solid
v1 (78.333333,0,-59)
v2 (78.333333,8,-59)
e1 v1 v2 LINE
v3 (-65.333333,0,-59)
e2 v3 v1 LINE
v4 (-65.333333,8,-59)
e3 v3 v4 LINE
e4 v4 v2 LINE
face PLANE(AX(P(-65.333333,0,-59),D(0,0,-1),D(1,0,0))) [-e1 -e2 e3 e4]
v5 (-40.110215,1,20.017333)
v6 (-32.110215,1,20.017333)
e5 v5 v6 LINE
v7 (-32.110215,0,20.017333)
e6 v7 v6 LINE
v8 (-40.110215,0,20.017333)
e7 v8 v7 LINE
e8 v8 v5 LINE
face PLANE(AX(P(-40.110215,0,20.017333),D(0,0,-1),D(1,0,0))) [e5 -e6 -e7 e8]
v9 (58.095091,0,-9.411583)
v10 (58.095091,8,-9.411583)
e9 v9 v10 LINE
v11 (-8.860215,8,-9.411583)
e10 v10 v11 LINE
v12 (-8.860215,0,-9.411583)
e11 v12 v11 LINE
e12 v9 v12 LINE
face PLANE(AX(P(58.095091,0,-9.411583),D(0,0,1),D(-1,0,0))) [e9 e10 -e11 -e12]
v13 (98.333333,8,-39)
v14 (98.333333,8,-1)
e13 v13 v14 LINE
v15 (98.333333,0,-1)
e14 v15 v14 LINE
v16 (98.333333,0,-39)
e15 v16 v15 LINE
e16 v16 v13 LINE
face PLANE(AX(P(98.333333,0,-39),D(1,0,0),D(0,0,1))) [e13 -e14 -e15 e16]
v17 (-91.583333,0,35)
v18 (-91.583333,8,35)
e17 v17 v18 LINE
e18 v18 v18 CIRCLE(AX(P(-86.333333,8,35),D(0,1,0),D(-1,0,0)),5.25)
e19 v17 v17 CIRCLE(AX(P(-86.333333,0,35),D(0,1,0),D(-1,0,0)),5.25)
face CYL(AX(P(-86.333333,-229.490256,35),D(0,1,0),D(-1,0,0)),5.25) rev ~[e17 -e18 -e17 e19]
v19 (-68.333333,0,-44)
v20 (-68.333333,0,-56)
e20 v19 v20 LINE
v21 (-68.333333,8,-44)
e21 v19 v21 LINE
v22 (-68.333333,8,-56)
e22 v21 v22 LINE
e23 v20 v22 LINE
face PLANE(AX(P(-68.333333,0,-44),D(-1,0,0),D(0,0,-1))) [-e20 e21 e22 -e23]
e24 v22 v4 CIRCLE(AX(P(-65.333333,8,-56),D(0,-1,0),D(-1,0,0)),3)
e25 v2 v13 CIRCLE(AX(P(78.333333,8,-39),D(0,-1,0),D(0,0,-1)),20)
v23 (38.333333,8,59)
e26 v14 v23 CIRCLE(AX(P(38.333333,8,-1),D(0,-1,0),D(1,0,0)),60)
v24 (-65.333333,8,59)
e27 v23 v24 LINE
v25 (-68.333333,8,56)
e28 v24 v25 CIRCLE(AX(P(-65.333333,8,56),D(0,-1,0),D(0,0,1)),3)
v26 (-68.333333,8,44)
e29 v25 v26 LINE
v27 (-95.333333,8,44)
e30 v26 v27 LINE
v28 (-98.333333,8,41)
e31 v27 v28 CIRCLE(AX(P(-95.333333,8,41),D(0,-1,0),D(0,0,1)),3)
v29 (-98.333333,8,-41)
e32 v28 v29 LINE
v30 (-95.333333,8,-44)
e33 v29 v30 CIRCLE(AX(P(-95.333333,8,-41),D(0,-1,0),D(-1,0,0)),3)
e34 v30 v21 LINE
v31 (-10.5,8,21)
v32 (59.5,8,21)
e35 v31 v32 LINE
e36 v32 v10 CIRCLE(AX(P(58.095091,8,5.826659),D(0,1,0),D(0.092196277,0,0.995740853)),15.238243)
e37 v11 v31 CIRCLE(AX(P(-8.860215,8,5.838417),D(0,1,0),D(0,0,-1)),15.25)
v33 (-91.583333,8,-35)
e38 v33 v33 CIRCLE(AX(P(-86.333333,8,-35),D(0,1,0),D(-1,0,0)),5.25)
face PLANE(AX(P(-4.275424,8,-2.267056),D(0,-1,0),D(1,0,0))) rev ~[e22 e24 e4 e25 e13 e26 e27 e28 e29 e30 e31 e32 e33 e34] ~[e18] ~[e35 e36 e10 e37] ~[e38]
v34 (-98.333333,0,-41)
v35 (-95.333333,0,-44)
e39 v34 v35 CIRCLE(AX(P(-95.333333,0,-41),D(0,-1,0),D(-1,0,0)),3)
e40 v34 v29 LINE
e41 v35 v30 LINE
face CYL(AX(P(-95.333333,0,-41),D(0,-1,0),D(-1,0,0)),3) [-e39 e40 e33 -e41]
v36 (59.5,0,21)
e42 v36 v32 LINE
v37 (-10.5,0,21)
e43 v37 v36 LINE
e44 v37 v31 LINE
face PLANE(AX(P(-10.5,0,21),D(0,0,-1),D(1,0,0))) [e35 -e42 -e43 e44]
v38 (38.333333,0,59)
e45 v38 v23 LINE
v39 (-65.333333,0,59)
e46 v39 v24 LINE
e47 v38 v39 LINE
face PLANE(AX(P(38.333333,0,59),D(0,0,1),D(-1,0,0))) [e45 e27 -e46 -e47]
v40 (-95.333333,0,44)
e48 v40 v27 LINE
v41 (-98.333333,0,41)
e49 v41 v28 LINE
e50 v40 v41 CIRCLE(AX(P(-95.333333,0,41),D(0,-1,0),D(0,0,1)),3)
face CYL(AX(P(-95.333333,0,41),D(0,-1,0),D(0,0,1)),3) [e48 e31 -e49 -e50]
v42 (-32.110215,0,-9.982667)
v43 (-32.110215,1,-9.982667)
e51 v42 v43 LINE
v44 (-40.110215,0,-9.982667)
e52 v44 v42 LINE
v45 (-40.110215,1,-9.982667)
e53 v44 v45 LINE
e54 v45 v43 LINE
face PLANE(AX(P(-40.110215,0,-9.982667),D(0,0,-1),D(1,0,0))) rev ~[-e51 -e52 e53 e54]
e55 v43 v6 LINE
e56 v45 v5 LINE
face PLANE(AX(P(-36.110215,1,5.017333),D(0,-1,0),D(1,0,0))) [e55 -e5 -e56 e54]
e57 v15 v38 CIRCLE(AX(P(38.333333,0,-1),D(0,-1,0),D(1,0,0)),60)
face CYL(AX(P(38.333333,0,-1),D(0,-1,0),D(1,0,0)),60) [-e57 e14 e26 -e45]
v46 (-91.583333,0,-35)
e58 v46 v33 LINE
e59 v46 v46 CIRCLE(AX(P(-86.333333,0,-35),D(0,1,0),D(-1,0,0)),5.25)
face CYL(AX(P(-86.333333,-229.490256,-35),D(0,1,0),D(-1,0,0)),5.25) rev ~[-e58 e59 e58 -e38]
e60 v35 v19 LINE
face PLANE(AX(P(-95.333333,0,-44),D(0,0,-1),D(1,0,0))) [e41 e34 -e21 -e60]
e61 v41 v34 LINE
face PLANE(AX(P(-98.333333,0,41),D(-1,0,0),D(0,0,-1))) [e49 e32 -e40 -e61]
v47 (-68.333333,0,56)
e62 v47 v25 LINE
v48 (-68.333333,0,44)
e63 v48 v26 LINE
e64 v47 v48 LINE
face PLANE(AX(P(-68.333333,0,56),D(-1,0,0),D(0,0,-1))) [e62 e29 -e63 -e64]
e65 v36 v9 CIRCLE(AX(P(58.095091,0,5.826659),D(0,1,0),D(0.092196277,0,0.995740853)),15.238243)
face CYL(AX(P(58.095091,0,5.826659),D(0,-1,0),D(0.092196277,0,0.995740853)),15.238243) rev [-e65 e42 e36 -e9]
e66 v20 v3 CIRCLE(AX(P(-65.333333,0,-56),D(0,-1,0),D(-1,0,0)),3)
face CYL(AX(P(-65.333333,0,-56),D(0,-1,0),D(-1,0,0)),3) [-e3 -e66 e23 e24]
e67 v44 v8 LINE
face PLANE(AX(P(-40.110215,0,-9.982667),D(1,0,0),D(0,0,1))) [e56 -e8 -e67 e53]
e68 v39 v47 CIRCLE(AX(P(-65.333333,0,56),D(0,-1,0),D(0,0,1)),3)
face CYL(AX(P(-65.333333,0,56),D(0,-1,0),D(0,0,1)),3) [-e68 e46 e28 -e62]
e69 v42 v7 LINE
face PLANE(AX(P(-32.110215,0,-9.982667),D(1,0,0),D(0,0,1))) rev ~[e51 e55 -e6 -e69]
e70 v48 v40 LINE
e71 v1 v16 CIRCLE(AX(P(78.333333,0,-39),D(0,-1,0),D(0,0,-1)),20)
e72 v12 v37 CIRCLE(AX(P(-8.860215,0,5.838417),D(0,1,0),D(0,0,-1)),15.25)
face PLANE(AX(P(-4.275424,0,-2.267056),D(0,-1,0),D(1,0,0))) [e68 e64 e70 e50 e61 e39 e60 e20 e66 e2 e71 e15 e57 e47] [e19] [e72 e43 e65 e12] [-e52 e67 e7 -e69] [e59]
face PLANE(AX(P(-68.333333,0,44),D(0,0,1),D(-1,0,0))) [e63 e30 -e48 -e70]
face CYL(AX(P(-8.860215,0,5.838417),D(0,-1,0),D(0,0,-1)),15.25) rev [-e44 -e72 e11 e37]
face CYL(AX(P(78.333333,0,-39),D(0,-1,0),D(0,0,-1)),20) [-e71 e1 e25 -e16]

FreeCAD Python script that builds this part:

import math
import FreeCAD as App
import Part
import Sketcher

V = App.Vector

doc = App.newDocument("Part")
body = doc.addObject("PartDesign::Body", "Body")

# Sketch on XZ plane
sketch1 = body.newObject("Sketcher::SketchObject", "Sketch")
sketch1.AttachmentSupport = (doc.getObject("XZ_Plane"), [""])
sketch1.MapMode = "FlatFace"
sketch1.addGeometry([
    Part.LineSegment(V(-65.3, -59, 0), V(78.3, -59, 0)),  # 0
    Part.ArcOfCircle(Part.Circle(V(78.3, -39, 0), V(0, 0, 1), 20), math.radians(-90), math.radians(0)),  # 1
    Part.LineSegment(V(98.3, -39, 0), V(98.3, -1, 0)),  # 2
    Part.ArcOfCircle(Part.Circle(V(38.3, -1, 0), V(0, 0, 1), 60), math.radians(0), math.radians(90)),  # 3
    Part.LineSegment(V(38.3, 59, 0), V(-65.3, 59, 0)),  # 4
    Part.ArcOfCircle(Part.Circle(V(-65.3, 56, 0), V(0, 0, 1), 3), math.radians(90), math.radians(180)),  # 5
    Part.LineSegment(V(-68.3, 56, 0), V(-68.3, 44, 0)),  # 6
    Part.LineSegment(V(-68.3, 44, 0), V(-95.3, 44, 0)),  # 7
    Part.ArcOfCircle(Part.Circle(V(-95.3, 41, 0), V(0, 0, 1), 3), math.radians(90), math.radians(180)),  # 8
    Part.LineSegment(V(-98.3, 41, 0), V(-98.3, -41, 0)),  # 9
    Part.ArcOfCircle(Part.Circle(V(-95.3, -41, 0), V(0, 0, 1), 3), math.radians(180), math.radians(270)),  # 10
    Part.LineSegment(V(-95.3, -44, 0), V(-68.3, -44, 0)),  # 11
    Part.LineSegment(V(-68.3, -44, 0), V(-68.3, -56, 0)),  # 12
    Part.ArcOfCircle(Part.Circle(V(-65.3, -56, 0), V(0, 0, 1), 3), math.radians(180), math.radians(270)),  # 13
    Part.LineSegment(V(58.1, -9.4, 0), V(-8.9, -9.4, 0)),  # 14
    Part.ArcOfCircle(Part.Circle(V(-8.9, 5.8, 0), V(0, 0, 1), 15.2), math.radians(96), math.radians(270)),  # 15
    Part.LineSegment(V(-10.5, 21, 0), V(59.5, 21, 0)),  # 16
    Part.ArcOfCircle(Part.Circle(V(58.1, 5.8, 0), V(0, 0, 1), 15.2), math.radians(-90), math.radians(85)),  # 17
], False)
sketch1.addConstraint([
    Sketcher.Constraint("Tangent", 0, 2, 1, 1),
    Sketcher.Constraint("Tangent", 1, 2, 2, 1),
    Sketcher.Constraint("Tangent", 2, 2, 3, 1),
    Sketcher.Constraint("Tangent", 3, 2, 4, 1),
    Sketcher.Constraint("Tangent", 4, 2, 5, 1),
    Sketcher.Constraint("Tangent", 5, 2, 6, 1),
    Sketcher.Constraint("Coincident", 6, 2, 7, 1),
    Sketcher.Constraint("Tangent", 7, 2, 8, 1),
    Sketcher.Constraint("Tangent", 8, 2, 9, 1),
    Sketcher.Constraint("Tangent", 9, 2, 10, 1),
    Sketcher.Constraint("Tangent", 10, 2, 11, 1),
    Sketcher.Constraint("Coincident", 11, 2, 12, 1),
    Sketcher.Constraint("Tangent", 12, 2, 13, 1),
    Sketcher.Constraint("Tangent", 13, 2, 0, 1),
    Sketcher.Constraint("Tangent", 14, 2, 15, 2),
    Sketcher.Constraint("Coincident", 15, 1, 16, 1),
    Sketcher.Constraint("Coincident", 16, 2, 17, 2),
    Sketcher.Constraint("Tangent", 17, 1, 14, 1),
    Sketcher.Constraint("Horizontal", 0),
    Sketcher.Constraint("Vertical", 2),
    Sketcher.Constraint("Horizontal", 4),
    Sketcher.Constraint("Vertical", 6),
    Sketcher.Constraint("Horizontal", 7),
    Sketcher.Constraint("Vertical", 9),
    Sketcher.Constraint("Horizontal", 11),
    Sketcher.Constraint("Vertical", 12),
    Sketcher.Constraint("Horizontal", 14),
    Sketcher.Constraint("Horizontal", 16),
    Sketcher.Constraint("Equal", 5, 8),
    Sketcher.Constraint("Equal", 8, 10),
    Sketcher.Constraint("Equal", 10, 13),
    Sketcher.Constraint("Symmetric", 5, 3, 13, 3, -1),
    Sketcher.Constraint("Equal", 6, 12),
    Sketcher.Constraint("Radius", 1, 20.0),
    Sketcher.Constraint("Radius", 3, 60.0),
    Sketcher.Constraint("Radius", 5, 3.0),
    Sketcher.Constraint("DistanceX", 7, 2, 7, 1, 27.0),
    Sketcher.Constraint("DistanceX", 16, 1, 16, 2, 70.0),
    Sketcher.Constraint("DistanceY", 2, 1, 2, 2, 38.0),
    Sketcher.Constraint("DistanceY", 6, 2, 6, 1, 12.0),
    Sketcher.Constraint("Radius", 15, 15.25),
    Sketcher.Constraint("DistanceY", -1, 1, 15, 1, 21.0),
    Sketcher.Constraint("DistanceX", 15, 1, -1, 1, 10.5),
    Sketcher.Constraint("Radius", 17, 15.238243),
    Sketcher.Constraint("DistanceX", 0, 1, 0, 2, 143.666667),
    Sketcher.Constraint("DistanceX", 14, 2, 14, 1, 66.955306),
    Sketcher.Constraint("DistanceX", 15, 3, 3, 3, 47.193548),
])
pad1 = body.newObject("PartDesign::Pad", "Pad")
pad1.Profile = sketch1
pad1.Length = 8
pad1.Reversed = True

# Sketch on XZ plane
sketch2 = body.newObject("Sketcher::SketchObject", "Sketch001")
sketch2.AttachmentSupport = (doc.getObject("XZ_Plane"), [""])
sketch2.MapMode = "FlatFace"
sketch2.addGeometry([
    Part.Circle(V(-86, 35, 0), V(0, 0, 1), 5),
    Part.Circle(V(-86, -35, 0), V(0, 0, 1), 5),
], False)
sketch2.addConstraint([
    Sketcher.Constraint("Equal", 0, 1),
    Sketcher.Constraint("Symmetric", 0, 3, 1, 3, -1),
    Sketcher.Constraint("Diameter", 0, 10.5),
    Sketcher.Constraint("DistanceY", -1, 1, 0, 3, 35.0),
    Sketcher.Constraint("DistanceX", 0, 3, -1, 1, 86.333333),
])
doc.recompute()
hole = body.newObject("PartDesign::Hole", "Hole")
hole.Profile = sketch2
hole.ThreadType = "None"
hole.Diameter = 10.5
hole.DepthType = "ThroughAll"

# Sketch on XZ plane
sketch3 = body.newObject("Sketcher::SketchObject", "Sketch002")
sketch3.AttachmentSupport = (doc.getObject("XZ_Plane"), [""])
sketch3.MapMode = "FlatFace"
sketch3.addGeometry([
    Part.LineSegment(V(-40, 20, 0), V(-40, -10, 0)),
    Part.LineSegment(V(-40, -10, 0), V(-32, -10, 0)),
    Part.LineSegment(V(-32, -10, 0), V(-32, 20, 0)),
    Part.LineSegment(V(-32, 20, 0), V(-40, 20, 0)),
], False)
sketch3.addConstraint([
    Sketcher.Constraint("Coincident", 0, 2, 1, 1),
    Sketcher.Constraint("Coincident", 1, 2, 2, 1),
    Sketcher.Constraint("Coincident", 2, 2, 3, 1),
    Sketcher.Constraint("Coincident", 3, 2, 0, 1),
    Sketcher.Constraint("Vertical", 0),
    Sketcher.Constraint("Horizontal", 1),
    Sketcher.Constraint("Vertical", 2),
    Sketcher.Constraint("Horizontal", 3),
    Sketcher.Constraint("DistanceX", 1, 1, 1, 2, 8.0),
    Sketcher.Constraint("DistanceY", 0, 2, 0, 1, 30.0),
    Sketcher.Constraint("DistanceX", 0, 2, -1, 1, 40.110215),
    Sketcher.Constraint("DistanceY", 0, 2, -1, 1, 9.982667),
])
pocket1 = body.newObject("PartDesign::Pocket", "Pocket")
pocket1.Profile = sketch3
pocket1.Length = 1

doc.recompute()
